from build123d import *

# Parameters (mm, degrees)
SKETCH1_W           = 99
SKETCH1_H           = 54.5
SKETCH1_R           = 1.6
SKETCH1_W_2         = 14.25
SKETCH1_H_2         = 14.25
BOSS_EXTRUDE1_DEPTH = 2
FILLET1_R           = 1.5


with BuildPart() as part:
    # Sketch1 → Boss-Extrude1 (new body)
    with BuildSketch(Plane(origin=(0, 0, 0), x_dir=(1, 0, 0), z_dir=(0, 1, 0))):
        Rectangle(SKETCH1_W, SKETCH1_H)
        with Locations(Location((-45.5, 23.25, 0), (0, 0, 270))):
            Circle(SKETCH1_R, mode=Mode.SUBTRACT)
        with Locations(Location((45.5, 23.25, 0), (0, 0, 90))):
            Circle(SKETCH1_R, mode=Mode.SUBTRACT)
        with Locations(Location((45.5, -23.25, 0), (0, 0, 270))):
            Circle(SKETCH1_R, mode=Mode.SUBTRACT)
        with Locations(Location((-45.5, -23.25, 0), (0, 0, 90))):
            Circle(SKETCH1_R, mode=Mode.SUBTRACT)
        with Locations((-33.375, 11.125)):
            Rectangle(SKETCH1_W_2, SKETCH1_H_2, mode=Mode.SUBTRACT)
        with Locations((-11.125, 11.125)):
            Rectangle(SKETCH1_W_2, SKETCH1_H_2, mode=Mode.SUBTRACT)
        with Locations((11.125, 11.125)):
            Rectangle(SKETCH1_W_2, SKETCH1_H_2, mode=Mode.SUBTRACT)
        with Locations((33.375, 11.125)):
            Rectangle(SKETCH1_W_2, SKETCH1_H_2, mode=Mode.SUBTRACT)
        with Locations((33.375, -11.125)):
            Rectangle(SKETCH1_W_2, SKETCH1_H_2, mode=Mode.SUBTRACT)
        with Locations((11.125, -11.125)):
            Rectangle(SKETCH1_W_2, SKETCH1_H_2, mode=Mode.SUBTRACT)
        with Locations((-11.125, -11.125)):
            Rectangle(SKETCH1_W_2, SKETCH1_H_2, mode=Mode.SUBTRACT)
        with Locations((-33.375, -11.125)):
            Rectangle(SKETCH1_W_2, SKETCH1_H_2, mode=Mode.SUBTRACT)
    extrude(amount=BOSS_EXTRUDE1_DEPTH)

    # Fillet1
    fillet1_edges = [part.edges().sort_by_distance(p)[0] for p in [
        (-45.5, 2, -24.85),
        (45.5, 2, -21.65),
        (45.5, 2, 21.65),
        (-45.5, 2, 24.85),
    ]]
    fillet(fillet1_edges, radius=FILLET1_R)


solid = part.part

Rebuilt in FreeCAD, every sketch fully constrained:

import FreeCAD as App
import Part
import Sketcher
from FreeCAD import Vector


def edges_at(feature, points):
    """Names of the edges that pass closest to the given points."""
    edges = feature.Shape.Edges
    near = lambda p: min(range(len(edges)), key=lambda i: edges[i].distToShape(Part.Vertex(*p))[0])
    return sorted({f"Edge{near(p) + 1}" for p in points})


def add_polygon(sketch, points):
    """Adds a closed chain of lines whose ends are joined by coincident constraints."""
    first, n = sketch.GeometryCount, len(points)
    for a, b in zip(points, points[1:] + points[:1]):
        sketch.addGeometry(Part.LineSegment(App.Vector(*a, 0), App.Vector(*b, 0)), False)
    for i in range(n):
        sketch.addConstraint(Sketcher.Constraint("Coincident", first + i, 2, first + (i + 1) % n, 1))

doc = App.newDocument("Part")
params = doc.addObject("Spreadsheet::Sheet", "Params")
for row, (alias, value) in enumerate([
    ("sketch1_diameter", "3.2 mm"),
    ("sketch1_width", "99 mm"),
    ("sketch1_height", "54.5 mm"),
    ("pad1_length", "2 mm"),
    ("fillet_radius", "1.5 mm"),
], start=1):
    params.set(f"A{row}", alias)
    params.set(f"B{row}", "=" + value)
    params.setAlias(f"B{row}", alias)

body = doc.addObject("PartDesign::Body", "Body")

sketch1 = body.newObject("Sketcher::SketchObject", "Sketch")
sketch1.AttachmentSupport = (doc.getObject("XZ_Plane"), [""])
sketch1.MapMode = "FlatFace"
add_polygon(sketch1, [(-49.5, -27.2), (-49.5, 27.2), (49.5, 27.2), (49.5, -27.2)])
sketch1.addGeometry(Part.Circle(Vector(-45.5, 23.2, 0), Vector(0, 0, 1), 1.6), False)
add_polygon(sketch1, [(-26.2, 18.2), (-40.5, 18.2), (-40.5, 4), (-26.2, 4)])
add_polygon(sketch1, [(-4, 18.2), (-18.2, 18.2), (-18.2, 4), (-4, 4)])
sketch1.addGeometry(Part.Circle(Vector(45.5, 23.2, 0), Vector(0, 0, 1), 1.6), False)
add_polygon(sketch1, [(18.2, 18.2), (4, 18.2), (4, 4), (18.2, 4)])
add_polygon(sketch1, [(40.5, 18.2), (26.2, 18.2), (26.2, 4), (40.5, 4)])
add_polygon(sketch1, [(-26.2, -4), (-40.5, -4), (-40.5, -18.2), (-26.2, -18.2)])
add_polygon(sketch1, [(-4, -4), (-18.2, -4), (-18.2, -18.2), (-4, -18.2)])
sketch1.addGeometry(Part.Circle(Vector(-45.5, -23.2, 0), Vector(0, 0, 1), 1.6), False)
add_polygon(sketch1, [(18.2, -4), (4, -4), (4, -18.2), (18.2, -18.2)])
add_polygon(sketch1, [(40.5, -4), (26.2, -4), (26.2, -18.2), (40.5, -18.2)])
sketch1.addGeometry(Part.Circle(Vector(45.5, -23.2, 0), Vector(0, 0, 1), 1.6), False)
sketch1.addConstraint(Sketcher.Constraint("Vertical", 0))
sketch1.addConstraint(Sketcher.Constraint("Horizontal", 1))
sketch1.addConstraint(Sketcher.Constraint("Vertical", 2))
sketch1.addConstraint(Sketcher.Constraint("Horizontal", 3))
sketch1.addConstraint(Sketcher.Constraint("Horizontal", 5))
sketch1.addConstraint(Sketcher.Constraint("Vertical", 6))
sketch1.addConstraint(Sketcher.Constraint("Horizontal", 7))
sketch1.addConstraint(Sketcher.Constraint("Vertical", 8))
sketch1.addConstraint(Sketcher.Constraint("Horizontal", 9))
sketch1.addConstraint(Sketcher.Constraint("Vertical", 10))
sketch1.addConstraint(Sketcher.Constraint("Horizontal", 11))
sketch1.addConstraint(Sketcher.Constraint("Vertical", 12))
sketch1.addConstraint(Sketcher.Constraint("Horizontal", 14))
sketch1.addConstraint(Sketcher.Constraint("Vertical", 15))
sketch1.addConstraint(Sketcher.Constraint("Horizontal", 16))
sketch1.addConstraint(Sketcher.Constraint("Vertical", 17))
sketch1.addConstraint(Sketcher.Constraint("Horizontal", 18))
sketch1.addConstraint(Sketcher.Constraint("Vertical", 19))
sketch1.addConstraint(Sketcher.Constraint("Horizontal", 20))
sketch1.addConstraint(Sketcher.Constraint("Vertical", 21))
sketch1.addConstraint(Sketcher.Constraint("Horizontal", 22))
sketch1.addConstraint(Sketcher.Constraint("Vertical", 23))
sketch1.addConstraint(Sketcher.Constraint("Horizontal", 24))
sketch1.addConstraint(Sketcher.Constraint("Vertical", 25))
sketch1.addConstraint(Sketcher.Constraint("Horizontal", 26))
sketch1.addConstraint(Sketcher.Constraint("Vertical", 27))
sketch1.addConstraint(Sketcher.Constraint("Horizontal", 28))
sketch1.addConstraint(Sketcher.Constraint("Vertical", 29))
sketch1.addConstraint(Sketcher.Constraint("Horizontal", 31))
sketch1.addConstraint(Sketcher.Constraint("Vertical", 32))
sketch1.addConstraint(Sketcher.Constraint("Horizontal", 33))
sketch1.addConstraint(Sketcher.Constraint("Vertical", 34))
sketch1.addConstraint(Sketcher.Constraint("Horizontal", 35))
sketch1.addConstraint(Sketcher.Constraint("Vertical", 36))
sketch1.addConstraint(Sketcher.Constraint("Horizontal", 37))
sketch1.addConstraint(Sketcher.Constraint("Vertical", 38))
sketch1.addConstraint(Sketcher.Constraint("Equal", 4, 13))
sketch1.addConstraint(Sketcher.Constraint("Equal", 13, 30))
sketch1.addConstraint(Sketcher.Constraint("Equal", 30, 39))
sketch1.addConstraint(Sketcher.Constraint("Symmetric", 13, 3, 30, 3, -1, 1))
sketch1.addConstraint(Sketcher.Constraint("Symmetric", 4, 3, 39, 3, -1, 1))
sketch1.addConstraint(Sketcher.Constraint("Symmetric", 0, 2, 2, 2, -1, 1))
sketch1.addConstraint(Sketcher.Constraint("Symmetric", 20, 2, 22, 2, -1, 1))
sketch1.addConstraint(Sketcher.Constraint("Symmetric", 18, 2, 24, 2, -1, 1))
sketch1.addConstraint(Sketcher.Constraint("Symmetric", 16, 2, 26, 2, -1, 1))
sketch1.addConstraint(Sketcher.Constraint("Symmetric", 14, 2, 28, 2, -1, 1))
sketch1.addConstraint(Sketcher.Constraint("Symmetric", 11, 2, 31, 2, -1, 1))
sketch1.addConstraint(Sketcher.Constraint("Symmetric", 9, 2, 33, 2, -1, 1))
sketch1.addConstraint(Sketcher.Constraint("Symmetric", 7, 2, 35, 2, -1, 1))
sketch1.addConstraint(Sketcher.Constraint("Symmetric", 5, 2, 37, 2, -1, 1))
sketch1.addConstraint(Sketcher.Constraint("Symmetric", 4, 3, 13, 3, -2))
sketch1.addConstraint(Sketcher.Constraint("Symmetric", 12, 2, 14, 2, -2))
sketch1.addConstraint(Sketcher.Constraint("Symmetric", 10, 2, 16, 2, -2))
sketch1.addConstraint(Sketcher.Constraint("Symmetric", 8, 2, 18, 2, -2))
sketch1.addConstraint(Sketcher.Constraint("Symmetric", 6, 2, 20, 2, -2))
sketch1.addConstraint(Sketcher.Constraint("Horizontal", 8, 2, 9, 2))
sketch1.addConstraint(Sketcher.Constraint("Horizontal", 7, 2, 10, 2))
sketch1.addConstraint(Sketcher.Constraint("Equal", 7, 9))
sketch1.addConstraint(Sketcher.Constraint("Equal", 37, 6))
sketch1.addConstraint(Sketcher.Constraint("Diameter", 4, 3.2))
sketch1.addConstraint(Sketcher.Constraint("DistanceX", 1, 1, 1, 2, 99.0))
sketch1.addConstraint(Sketcher.Constraint("DistanceY", 0, 1, 0, 2, 54.5))
sketch1.addConstraint(Sketcher.Constraint("DistanceY", -1, 1, 6, 2, 4.0))
sketch1.addConstraint(Sketcher.Constraint("DistanceX", 11, 2, -1, 1, 4.0))
sketch1.addConstraint(Sketcher.Constraint("DistanceX", 4, 3, 13, 3, 91.0))
sketch1.addConstraint(Sketcher.Constraint("DistanceY", 4, 3, 0, 2, 4.0))
sketch1.addConstraint(Sketcher.Constraint("DistanceX", 4, 3, 5, 2, 5.0))
sketch1.addConstraint(Sketcher.Constraint("DistanceY", 5, 2, 4, 3, 5.0))
sketch1.setExpression("Constraints[95]", "Params.sketch1_diameter")
sketch1.setExpression("Constraints[96]", "Params.sketch1_width")
sketch1.setExpression("Constraints[97]", "Params.sketch1_height")
pad1 = body.newObject("PartDesign::Pad", "Pad")
pad1.Profile = sketch1
pad1.setExpression("Length", "Params.pad1_length")
pad1.Reversed = True
doc.recompute()

fillet = body.newObject("PartDesign::Fillet", "Fillet")
fillet.Base = (pad1, edges_at(pad1, [
    (-45.5, 2, -24.85),
    (45.5, 2, -21.65),
    (45.5, 2, 21.65),
    (-45.5, 2, 24.85),
]))
fillet.setExpression("Radius", "Params.fillet_radius")

doc.recompute()
